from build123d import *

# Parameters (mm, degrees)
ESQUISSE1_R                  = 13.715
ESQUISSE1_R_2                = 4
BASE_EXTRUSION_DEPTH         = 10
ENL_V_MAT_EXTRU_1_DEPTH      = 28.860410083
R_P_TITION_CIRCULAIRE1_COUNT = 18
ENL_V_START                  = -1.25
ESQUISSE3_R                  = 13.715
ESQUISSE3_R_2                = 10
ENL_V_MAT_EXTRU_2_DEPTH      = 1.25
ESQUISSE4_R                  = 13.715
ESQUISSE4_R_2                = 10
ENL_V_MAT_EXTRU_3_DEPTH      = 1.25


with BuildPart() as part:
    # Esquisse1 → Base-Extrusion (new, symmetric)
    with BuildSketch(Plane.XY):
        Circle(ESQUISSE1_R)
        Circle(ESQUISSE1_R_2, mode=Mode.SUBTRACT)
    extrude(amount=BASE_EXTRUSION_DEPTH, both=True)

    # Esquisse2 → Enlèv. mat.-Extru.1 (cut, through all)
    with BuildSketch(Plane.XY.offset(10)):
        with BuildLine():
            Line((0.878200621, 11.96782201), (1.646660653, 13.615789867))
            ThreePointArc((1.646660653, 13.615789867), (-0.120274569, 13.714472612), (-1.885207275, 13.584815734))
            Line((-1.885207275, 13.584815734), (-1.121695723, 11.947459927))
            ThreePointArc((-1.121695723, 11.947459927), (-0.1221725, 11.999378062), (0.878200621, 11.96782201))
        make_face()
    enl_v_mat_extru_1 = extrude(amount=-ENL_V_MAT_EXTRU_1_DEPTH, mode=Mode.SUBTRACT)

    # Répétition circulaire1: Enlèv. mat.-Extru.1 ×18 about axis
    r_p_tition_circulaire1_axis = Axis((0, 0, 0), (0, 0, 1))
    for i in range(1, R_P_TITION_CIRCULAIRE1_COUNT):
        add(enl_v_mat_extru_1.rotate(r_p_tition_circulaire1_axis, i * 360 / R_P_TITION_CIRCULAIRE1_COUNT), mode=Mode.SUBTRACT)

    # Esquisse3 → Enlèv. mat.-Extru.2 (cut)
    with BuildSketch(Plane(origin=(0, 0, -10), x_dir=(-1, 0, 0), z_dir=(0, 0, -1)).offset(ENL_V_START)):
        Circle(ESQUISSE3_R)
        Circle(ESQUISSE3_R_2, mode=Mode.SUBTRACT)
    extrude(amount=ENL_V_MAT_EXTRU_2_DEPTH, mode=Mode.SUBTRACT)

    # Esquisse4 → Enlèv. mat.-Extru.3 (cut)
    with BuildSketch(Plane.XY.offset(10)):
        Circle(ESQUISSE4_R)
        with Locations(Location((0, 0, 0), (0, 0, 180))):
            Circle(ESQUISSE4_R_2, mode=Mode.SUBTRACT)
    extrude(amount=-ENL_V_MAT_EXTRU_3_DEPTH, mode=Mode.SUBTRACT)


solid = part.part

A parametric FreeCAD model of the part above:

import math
import FreeCAD as App
import Part
import Sketcher

V = App.Vector
Q = App.Units.Quantity

doc = App.newDocument("Part")
params = doc.addObject("Spreadsheet::Sheet", "Params")
for row, (alias, value) in enumerate([
    ("sketch1_diameter", "8 mm"),
    ("sketch1_diameter2", "27.43 mm"),
    ("pad1_length", "20 mm"),
    ("sketch2_radius", "12 mm"),
    ("sketch3_diameter", "20 mm"),
    ("sketch3_diameter2", "27.43 mm"),
    ("pocket2_length", "1.25 mm"),
    ("sketch4_diameter", "20 mm"),
    ("sketch4_diameter2", "27.43 mm"),
    ("pocket3_length", "1.25 mm"),
], start=1):
    params.set(f"A{row}", alias)
    params.set(f"B{row}", "=" + value)
    params.setAlias(f"B{row}", alias)

body = doc.addObject("PartDesign::Body", "Body")

# Sketch on XY plane
sketch1 = doc.addObject("Sketcher::SketchObject", "Sketch")
body.addObject(sketch1)
sketch1.AttachmentSupport = (doc.XY_Plane, [""])
sketch1.MapMode = "FlatFace"
sketch1.addGeometry(Part.Circle(V(0, 0, 0), V(0, 0, 1), 13.7), False)
sketch1.addGeometry(Part.Circle(V(0, 0, 0), V(0, 0, 1), 4), False)
sketch1.addConstraint(Sketcher.Constraint("Coincident", 0, 3, -1, 1))
sketch1.addConstraint(Sketcher.Constraint("Coincident", 1, 3, -1, 1))
sketch1.addConstraint(Sketcher.Constraint("Diameter", 1, 8.0))
sketch1.addConstraint(Sketcher.Constraint("Diameter", 0, 27.43))
sketch1.setExpression("Constraints[2]", "Params.sketch1_diameter")
sketch1.setExpression("Constraints[3]", "Params.sketch1_diameter2")
pad1 = doc.addObject("PartDesign::Pad", "Pad")
body.addObject(pad1)
pad1.Profile = sketch1
pad1.setExpression("Length", "Params.pad1_length")
pad1.Midplane = True

# Sketch on XY plane
sketch2 = doc.addObject("Sketcher::SketchObject", "Sketch001")
body.addObject(sketch2)
sketch2.AttachmentSupport = (doc.XY_Plane, [""])
sketch2.MapMode = "FlatFace"
sketch2.AttachmentOffset = App.Placement(V(0, 0, 10), App.Rotation())
sketch2.addGeometry(Part.LineSegment(V(0.9, 12, 0), V(1.6, 13.6, 0)), False)
sketch2.addGeometry(Part.ArcOfCircle(Part.Circle(V(0, 0, 0), V(0, 0, 1), 13.7), math.radians(83.1), math.radians(97.9)), False)
sketch2.addGeometry(Part.LineSegment(V(-1.9, 13.6, 0), V(-1.1, 11.9, 0)), False)
sketch2.addGeometry(Part.ArcOfCircle(Part.Circle(V(0, 0, 0), V(0, 0, 1), 12), math.radians(85.8), math.radians(95.36)), False)
sketch2.addConstraint(Sketcher.Constraint("Coincident", 0, 2, 1, 1))
sketch2.addConstraint(Sketcher.Constraint("Coincident", 1, 2, 2, 1))
sketch2.addConstraint(Sketcher.Constraint("Coincident", 2, 2, 3, 2))
sketch2.addConstraint(Sketcher.Constraint("Coincident", 3, 1, 0, 1))
sketch2.addConstraint(Sketcher.Constraint("Coincident", 1, 3, -1, 1))
sketch2.addConstraint(Sketcher.Constraint("Coincident", 3, 3, -1, 1))
sketch2.addConstraint(Sketcher.Constraint("Radius", 3, 12.0))
sketch2.addConstraint(Sketcher.Constraint("Angle", 0, Q("65 deg")))
sketch2.addConstraint(Sketcher.Constraint("Angle", 2, Q("-65 deg")))
sketch2.addConstraint(Sketcher.Constraint("Radius", 1, 13.715))
sketch2.addConstraint(Sketcher.Constraint("DistanceX", -1, 1, 3, 1, 0.878201))
sketch2.addConstraint(Sketcher.Constraint("DistanceY", -1, 1, 2, 2, 11.94746))
sketch2.setExpression("Constraints[6]", "Params.sketch2_radius")
pocket1 = doc.addObject("PartDesign::Pocket", "Pocket")
body.addObject(pocket1)
pocket1.Profile = sketch2
pocket1.Type = "ThroughAll"
doc.recompute()

polarpattern = doc.addObject("PartDesign::PolarPattern", "PolarPattern")
body.addObject(polarpattern)
polarpattern.Originals = [pocket1]
polarpattern.Axis = (doc.Z_Axis, [""])
polarpattern.Angle = 360
polarpattern.Occurrences = 18
body.Tip = polarpattern

# Sketch on XY plane
sketch3 = doc.addObject("Sketcher::SketchObject", "Sketch002")
body.addObject(sketch3)
sketch3.AttachmentSupport = (doc.XY_Plane, [""])
sketch3.MapMode = "FlatFace"
sketch3.AttachmentOffset = App.Placement(V(0, 0, -8.75), App.Rotation())
sketch3.addGeometry(Part.Circle(V(0, 0, 0), V(0, 0, 1), 14), False)
sketch3.addGeometry(Part.Circle(V(0, 0, 0), V(0, 0, 1), 10), False)
sketch3.addConstraint(Sketcher.Constraint("Coincident", 0, 3, -1, 1))
sketch3.addConstraint(Sketcher.Constraint("Coincident", 1, 3, -1, 1))
sketch3.addConstraint(Sketcher.Constraint("Diameter", 1, 20.0))
sketch3.addConstraint(Sketcher.Constraint("Diameter", 0, 27.43))
sketch3.setExpression("Constraints[2]", "Params.sketch3_diameter")
sketch3.setExpression("Constraints[3]", "Params.sketch3_diameter2")
pocket2 = doc.addObject("PartDesign::Pocket", "Pocket001")
body.addObject(pocket2)
pocket2.Profile = sketch3
pocket2.setExpression("Length", "Params.pocket2_length")

# Sketch on XY plane
sketch4 = doc.addObject("Sketcher::SketchObject", "Sketch003")
body.addObject(sketch4)
sketch4.AttachmentSupport = (doc.XY_Plane, [""])
sketch4.MapMode = "FlatFace"
sketch4.AttachmentOffset = App.Placement(V(0, 0, 10), App.Rotation())
sketch4.addGeometry(Part.Circle(V(0, 0, 0), V(0, 0, 1), 14), False)
sketch4.addGeometry(Part.Circle(V(0, 0, 0), V(0, 0, 1), 10), False)
sketch4.addConstraint(Sketcher.Constraint("Coincident", 0, 3, -1, 1))
sketch4.addConstraint(Sketcher.Constraint("Coincident", 1, 3, -1, 1))
sketch4.addConstraint(Sketcher.Constraint("Diameter", 1, 20.0))
sketch4.addConstraint(Sketcher.Constraint("Diameter", 0, 27.43))
sketch4.setExpression("Constraints[2]", "Params.sketch4_diameter")
sketch4.setExpression("Constraints[3]", "Params.sketch4_diameter2")
pocket3 = doc.addObject("PartDesign::Pocket", "Pocket002")
body.addObject(pocket3)
pocket3.Profile = sketch4
pocket3.setExpression("Length", "Params.pocket3_length")

doc.recompute()
